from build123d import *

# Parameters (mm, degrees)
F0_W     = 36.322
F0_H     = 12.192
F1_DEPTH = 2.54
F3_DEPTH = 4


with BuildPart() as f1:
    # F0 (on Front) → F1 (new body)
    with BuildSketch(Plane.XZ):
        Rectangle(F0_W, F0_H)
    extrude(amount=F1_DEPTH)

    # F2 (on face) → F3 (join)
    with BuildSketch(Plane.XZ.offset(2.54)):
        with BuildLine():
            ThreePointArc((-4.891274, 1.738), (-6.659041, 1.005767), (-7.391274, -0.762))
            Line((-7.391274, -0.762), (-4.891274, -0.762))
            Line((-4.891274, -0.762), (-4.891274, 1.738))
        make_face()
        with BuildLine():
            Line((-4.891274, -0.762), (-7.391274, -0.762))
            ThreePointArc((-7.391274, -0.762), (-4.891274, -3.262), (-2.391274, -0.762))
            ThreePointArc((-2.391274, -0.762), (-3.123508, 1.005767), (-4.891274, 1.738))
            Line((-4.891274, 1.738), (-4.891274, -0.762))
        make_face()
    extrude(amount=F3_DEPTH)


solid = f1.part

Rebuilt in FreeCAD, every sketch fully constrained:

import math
import FreeCAD as App
import Part
import Sketcher

V = App.Vector
Q = App.Units.Quantity


def add_polygon(sketch, points):
    """Adds a closed chain of lines whose ends are joined by coincident constraints."""
    first, n = sketch.GeometryCount, len(points)
    for a, b in zip(points, points[1:] + points[:1]):
        sketch.addGeometry(Part.LineSegment(App.Vector(*a, 0), App.Vector(*b, 0)), False)
    for i in range(n):
        sketch.addConstraint(Sketcher.Constraint("Coincident", first + i, 2, first + (i + 1) % n, 1))

doc = App.newDocument("Part")
body = doc.addObject("PartDesign::Body", "Body")

sketch1 = doc.addObject("Sketcher::SketchObject", "Sketch")
body.addObject(sketch1)
sketch1.AttachmentSupport = (doc.XZ_Plane, [""])
sketch1.MapMode = "FlatFace"
add_polygon(sketch1, [(-18.161, 6.096), (-18.161, -6.096), (18.161, -6.096), (18.161, 6.096)])
sketch1.addConstraint(Sketcher.Constraint("Vertical", 0))
sketch1.addConstraint(Sketcher.Constraint("Horizontal", 1))
sketch1.addConstraint(Sketcher.Constraint("Vertical", 2))
sketch1.addConstraint(Sketcher.Constraint("Horizontal", 3))
sketch1.addConstraint(Sketcher.Constraint("Symmetric", 0, 2, 2, 2, -1, 1))
sketch1.addConstraint(Sketcher.Constraint("DistanceX", 1, 1, 1, 2, Q("1.43 in")))
sketch1.addConstraint(Sketcher.Constraint("DistanceY", 0, 2, 0, 1, Q("0.48 in")))
pad1 = doc.addObject("PartDesign::Pad", "Pad")
body.addObject(pad1)
pad1.Profile = sketch1
pad1.Length = Q("0.1 in")

sketch2 = doc.addObject("Sketcher::SketchObject", "Sketch001")
body.addObject(sketch2)
sketch2.AttachmentSupport = (doc.XZ_Plane, [""])
sketch2.MapMode = "FlatFace"
sketch2.AttachmentOffset = App.Placement(V(0, 0, 0.1 * 25.4), App.Rotation())
sketch2.addGeometry(Part.ArcOfCircle(Part.Circle(V(-4.891274, -0.762, 0), V(0, 0, 1), 2.5), math.radians(89.999996), math.radians(180.000004)), False)
sketch2.addGeometry(Part.ArcOfCircle(Part.Circle(V(-4.891274, -0.762, 0), V(0, 0, 1), 2.5), math.radians(180), math.radians(360)), False)
sketch2.addGeometry(Part.ArcOfCircle(Part.Circle(V(-4.891276, -0.762002, 0), V(0, 0, 1), 2.500002), math.radians(0.000035), math.radians(89.999965)), False)
sketch2.addConstraint(Sketcher.Constraint("Tangent", 0, 2, 1, 1))
sketch2.addConstraint(Sketcher.Constraint("Tangent", 1, 2, 2, 1))
sketch2.addConstraint(Sketcher.Constraint("Tangent", 2, 2, 0, 1))
sketch2.addConstraint(Sketcher.Constraint("Horizontal", 2, 3, 0, 2))
sketch2.addConstraint(Sketcher.Constraint("Horizontal", 0, 2, 1, 2))
sketch2.addConstraint(Sketcher.Constraint("Vertical", 1, 3, 2, 2))
sketch2.addConstraint(Sketcher.Constraint("DistanceY", 0, 3, -1, 1, Q("0.03 in")))
sketch2.addConstraint(Sketcher.Constraint("Radius", 0, Q("2.5 mm")))
sketch2.addConstraint(Sketcher.Constraint("DistanceX", 0, 3, -1, 1, Q("4.891274 mm")))
pad2 = doc.addObject("PartDesign::Pad", "Pad001")
body.addObject(pad2)
pad2.Profile = sketch2
pad2.Length = 4

doc.recompute()
